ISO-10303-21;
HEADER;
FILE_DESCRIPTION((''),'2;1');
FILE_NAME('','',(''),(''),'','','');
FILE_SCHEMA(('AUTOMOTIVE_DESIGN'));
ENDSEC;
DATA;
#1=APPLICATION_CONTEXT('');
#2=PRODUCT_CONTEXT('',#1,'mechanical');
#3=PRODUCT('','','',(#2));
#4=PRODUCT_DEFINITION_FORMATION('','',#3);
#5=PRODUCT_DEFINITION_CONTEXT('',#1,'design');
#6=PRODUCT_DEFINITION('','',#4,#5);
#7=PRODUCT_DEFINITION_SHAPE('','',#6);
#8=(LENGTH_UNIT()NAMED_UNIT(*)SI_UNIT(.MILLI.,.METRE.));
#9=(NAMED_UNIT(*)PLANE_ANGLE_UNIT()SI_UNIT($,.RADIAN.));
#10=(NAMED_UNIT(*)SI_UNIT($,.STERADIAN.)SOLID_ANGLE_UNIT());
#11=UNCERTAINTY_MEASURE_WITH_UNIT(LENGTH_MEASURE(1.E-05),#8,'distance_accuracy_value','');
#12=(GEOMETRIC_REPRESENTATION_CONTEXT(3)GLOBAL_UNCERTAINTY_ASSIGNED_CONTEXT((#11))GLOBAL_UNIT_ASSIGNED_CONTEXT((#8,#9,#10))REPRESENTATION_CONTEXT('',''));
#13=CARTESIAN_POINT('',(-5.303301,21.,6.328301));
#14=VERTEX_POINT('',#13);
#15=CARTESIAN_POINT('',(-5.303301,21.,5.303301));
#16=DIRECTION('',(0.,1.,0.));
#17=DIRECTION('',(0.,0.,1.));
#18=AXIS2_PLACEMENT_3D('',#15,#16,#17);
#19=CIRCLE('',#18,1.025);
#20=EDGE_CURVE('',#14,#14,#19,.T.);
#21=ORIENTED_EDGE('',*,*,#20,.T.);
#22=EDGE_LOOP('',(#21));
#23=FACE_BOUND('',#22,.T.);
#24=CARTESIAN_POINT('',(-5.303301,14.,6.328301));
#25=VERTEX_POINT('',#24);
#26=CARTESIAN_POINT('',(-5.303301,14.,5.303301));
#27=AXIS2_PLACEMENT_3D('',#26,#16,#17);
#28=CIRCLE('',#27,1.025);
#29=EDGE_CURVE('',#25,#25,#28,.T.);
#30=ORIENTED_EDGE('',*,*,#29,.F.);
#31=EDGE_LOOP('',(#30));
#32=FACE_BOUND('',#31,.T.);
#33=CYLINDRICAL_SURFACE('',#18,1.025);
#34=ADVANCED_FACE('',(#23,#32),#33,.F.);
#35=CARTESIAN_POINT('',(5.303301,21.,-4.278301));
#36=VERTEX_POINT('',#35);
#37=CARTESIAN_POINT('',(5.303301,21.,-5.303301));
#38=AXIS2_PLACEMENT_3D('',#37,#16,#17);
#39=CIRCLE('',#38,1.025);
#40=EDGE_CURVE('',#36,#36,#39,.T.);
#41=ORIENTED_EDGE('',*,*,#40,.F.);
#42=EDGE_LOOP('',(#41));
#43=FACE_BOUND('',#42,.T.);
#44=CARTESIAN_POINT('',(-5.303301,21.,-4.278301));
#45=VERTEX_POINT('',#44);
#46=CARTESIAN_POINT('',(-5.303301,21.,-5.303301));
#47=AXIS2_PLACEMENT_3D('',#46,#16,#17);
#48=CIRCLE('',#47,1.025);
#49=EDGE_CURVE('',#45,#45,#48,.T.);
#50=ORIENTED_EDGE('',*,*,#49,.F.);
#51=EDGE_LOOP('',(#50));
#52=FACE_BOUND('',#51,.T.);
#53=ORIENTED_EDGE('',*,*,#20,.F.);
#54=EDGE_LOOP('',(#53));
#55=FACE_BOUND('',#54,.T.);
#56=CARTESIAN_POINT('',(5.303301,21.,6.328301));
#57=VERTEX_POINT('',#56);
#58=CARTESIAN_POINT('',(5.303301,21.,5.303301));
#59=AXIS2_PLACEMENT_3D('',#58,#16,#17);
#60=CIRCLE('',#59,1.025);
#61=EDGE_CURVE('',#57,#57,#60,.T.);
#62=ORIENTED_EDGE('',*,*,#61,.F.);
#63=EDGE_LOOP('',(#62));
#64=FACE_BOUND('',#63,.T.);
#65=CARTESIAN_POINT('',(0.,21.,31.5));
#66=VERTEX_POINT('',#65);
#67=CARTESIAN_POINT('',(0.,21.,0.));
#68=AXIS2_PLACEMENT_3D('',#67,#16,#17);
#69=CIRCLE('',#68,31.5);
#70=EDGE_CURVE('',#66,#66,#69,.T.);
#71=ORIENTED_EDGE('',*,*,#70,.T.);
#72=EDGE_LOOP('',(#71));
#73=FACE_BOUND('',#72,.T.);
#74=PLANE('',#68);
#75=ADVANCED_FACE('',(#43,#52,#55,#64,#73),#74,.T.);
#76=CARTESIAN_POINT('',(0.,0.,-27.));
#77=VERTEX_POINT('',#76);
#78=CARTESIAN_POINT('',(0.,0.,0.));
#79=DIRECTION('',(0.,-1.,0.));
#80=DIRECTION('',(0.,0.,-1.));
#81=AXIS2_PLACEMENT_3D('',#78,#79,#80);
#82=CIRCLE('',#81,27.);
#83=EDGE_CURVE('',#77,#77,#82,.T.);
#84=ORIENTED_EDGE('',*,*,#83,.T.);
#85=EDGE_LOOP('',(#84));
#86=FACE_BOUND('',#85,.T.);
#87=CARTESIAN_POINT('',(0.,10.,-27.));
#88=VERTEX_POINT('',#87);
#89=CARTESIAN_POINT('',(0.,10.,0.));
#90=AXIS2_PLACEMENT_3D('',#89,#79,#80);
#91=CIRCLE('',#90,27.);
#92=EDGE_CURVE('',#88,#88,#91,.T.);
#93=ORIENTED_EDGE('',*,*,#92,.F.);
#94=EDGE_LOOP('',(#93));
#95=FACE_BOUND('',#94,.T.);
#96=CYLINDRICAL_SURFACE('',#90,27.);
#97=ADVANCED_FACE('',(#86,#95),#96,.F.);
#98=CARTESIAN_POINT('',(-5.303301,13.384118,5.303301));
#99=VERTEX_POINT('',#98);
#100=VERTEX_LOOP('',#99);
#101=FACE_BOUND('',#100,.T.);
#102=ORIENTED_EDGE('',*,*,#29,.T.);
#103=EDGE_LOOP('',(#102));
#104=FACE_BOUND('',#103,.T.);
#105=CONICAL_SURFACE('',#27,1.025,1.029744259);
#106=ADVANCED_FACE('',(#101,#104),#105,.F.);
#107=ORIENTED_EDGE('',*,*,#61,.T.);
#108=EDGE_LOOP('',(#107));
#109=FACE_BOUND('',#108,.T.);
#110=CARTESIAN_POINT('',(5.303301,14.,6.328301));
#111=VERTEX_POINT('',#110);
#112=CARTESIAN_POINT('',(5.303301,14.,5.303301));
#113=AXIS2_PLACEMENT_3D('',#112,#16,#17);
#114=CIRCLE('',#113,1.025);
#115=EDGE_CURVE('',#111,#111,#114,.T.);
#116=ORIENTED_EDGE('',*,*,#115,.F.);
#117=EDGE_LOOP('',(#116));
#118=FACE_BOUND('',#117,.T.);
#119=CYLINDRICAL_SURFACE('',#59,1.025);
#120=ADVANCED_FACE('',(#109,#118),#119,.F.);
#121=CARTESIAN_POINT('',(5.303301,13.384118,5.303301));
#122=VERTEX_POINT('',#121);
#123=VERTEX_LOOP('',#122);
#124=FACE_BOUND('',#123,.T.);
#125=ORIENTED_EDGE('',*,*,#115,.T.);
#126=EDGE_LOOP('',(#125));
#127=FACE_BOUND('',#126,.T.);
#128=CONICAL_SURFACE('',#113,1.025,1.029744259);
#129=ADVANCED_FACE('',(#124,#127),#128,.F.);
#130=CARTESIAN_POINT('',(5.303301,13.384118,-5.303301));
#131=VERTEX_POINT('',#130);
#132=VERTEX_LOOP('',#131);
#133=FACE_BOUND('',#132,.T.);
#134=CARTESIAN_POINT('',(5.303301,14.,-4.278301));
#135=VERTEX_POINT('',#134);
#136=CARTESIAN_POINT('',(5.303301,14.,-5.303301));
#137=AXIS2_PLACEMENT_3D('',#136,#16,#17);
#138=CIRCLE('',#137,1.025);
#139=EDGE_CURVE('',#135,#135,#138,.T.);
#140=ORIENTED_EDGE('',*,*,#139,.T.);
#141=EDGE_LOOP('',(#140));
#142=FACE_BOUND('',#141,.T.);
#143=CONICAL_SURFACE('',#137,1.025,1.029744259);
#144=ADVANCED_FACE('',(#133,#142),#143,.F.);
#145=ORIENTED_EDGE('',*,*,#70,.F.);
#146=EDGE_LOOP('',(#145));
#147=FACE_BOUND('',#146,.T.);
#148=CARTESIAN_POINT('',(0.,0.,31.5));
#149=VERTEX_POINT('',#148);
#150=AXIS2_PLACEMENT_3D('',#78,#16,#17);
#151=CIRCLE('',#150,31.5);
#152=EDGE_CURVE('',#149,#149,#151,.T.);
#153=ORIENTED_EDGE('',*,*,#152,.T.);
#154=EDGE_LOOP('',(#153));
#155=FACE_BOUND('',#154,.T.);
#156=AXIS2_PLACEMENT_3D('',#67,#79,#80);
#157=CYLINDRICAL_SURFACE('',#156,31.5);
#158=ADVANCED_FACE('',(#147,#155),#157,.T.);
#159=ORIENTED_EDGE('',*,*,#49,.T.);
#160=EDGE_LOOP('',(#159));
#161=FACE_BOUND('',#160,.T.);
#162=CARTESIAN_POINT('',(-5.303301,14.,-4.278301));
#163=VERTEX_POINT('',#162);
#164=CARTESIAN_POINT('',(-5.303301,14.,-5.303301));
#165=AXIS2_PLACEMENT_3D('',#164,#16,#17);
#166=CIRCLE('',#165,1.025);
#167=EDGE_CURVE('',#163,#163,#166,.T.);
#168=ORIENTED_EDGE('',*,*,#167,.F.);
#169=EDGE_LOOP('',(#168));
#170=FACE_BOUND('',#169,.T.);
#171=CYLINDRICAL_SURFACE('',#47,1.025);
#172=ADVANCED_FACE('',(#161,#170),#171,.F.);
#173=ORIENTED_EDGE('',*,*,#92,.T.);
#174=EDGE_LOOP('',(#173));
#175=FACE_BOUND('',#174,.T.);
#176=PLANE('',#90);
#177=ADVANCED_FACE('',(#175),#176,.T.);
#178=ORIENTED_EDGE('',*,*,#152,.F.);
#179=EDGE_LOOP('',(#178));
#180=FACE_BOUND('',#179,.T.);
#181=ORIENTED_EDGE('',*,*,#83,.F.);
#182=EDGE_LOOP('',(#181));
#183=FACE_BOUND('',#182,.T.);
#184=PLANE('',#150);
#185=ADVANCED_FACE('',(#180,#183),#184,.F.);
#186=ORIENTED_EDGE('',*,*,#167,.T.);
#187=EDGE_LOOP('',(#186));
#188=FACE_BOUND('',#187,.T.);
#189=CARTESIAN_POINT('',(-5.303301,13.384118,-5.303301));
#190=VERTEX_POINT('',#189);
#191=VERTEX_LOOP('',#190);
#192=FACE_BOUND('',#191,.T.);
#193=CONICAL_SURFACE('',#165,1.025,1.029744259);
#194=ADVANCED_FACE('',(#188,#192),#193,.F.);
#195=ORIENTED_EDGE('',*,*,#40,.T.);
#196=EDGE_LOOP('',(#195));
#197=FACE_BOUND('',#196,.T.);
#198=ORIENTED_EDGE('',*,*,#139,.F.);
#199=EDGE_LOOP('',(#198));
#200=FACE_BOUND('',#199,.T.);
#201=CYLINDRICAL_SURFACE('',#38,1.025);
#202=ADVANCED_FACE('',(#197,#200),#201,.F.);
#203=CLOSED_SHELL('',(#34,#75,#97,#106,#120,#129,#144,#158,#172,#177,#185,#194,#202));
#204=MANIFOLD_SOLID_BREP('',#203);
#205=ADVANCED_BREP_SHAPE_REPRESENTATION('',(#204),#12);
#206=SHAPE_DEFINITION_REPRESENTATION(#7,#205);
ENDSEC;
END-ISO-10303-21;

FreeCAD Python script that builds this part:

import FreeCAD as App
import Part
import Sketcher

doc = App.newDocument("Part")
body = doc.addObject("PartDesign::Body", "Body")

sketch1 = body.newObject("Sketcher::SketchObject", "Sketch")
sketch1.AttachmentSupport = (doc.getObject("XZ_Plane"), [""])
sketch1.MapMode = "FlatFace"
sketch1.addGeometry(Part.Circle(App.Vector(0, 0, 0), App.Vector(0, 0, 1), 32), False)
sketch1.addConstraint([
    Sketcher.Constraint("Coincident", 0, 3, -1, 1),
    Sketcher.Constraint("Diameter", 0, 63.0),
])
pad1 = body.newObject("PartDesign::Pad", "Pad")
pad1.Profile = sketch1
pad1.Length = 21
pad1.Reversed = True

sketch2 = body.newObject("Sketcher::SketchObject", "Sketch001")
sketch2.AttachmentSupport = (doc.getObject("XZ_Plane"), [""])
sketch2.MapMode = "FlatFace"
sketch2.AttachmentOffset = App.Placement(App.Vector(0, 0, -21), App.Rotation())
sketch2.addGeometry([
    Part.Circle(App.Vector(-5.3, -5.3, 0), App.Vector(0, 0, 1), 1),
    Part.Circle(App.Vector(5.3, -5.3, 0), App.Vector(0, 0, 1), 1),
    Part.Circle(App.Vector(5.3, 5.3, 0), App.Vector(0, 0, 1), 1),
    Part.Circle(App.Vector(-5.3, 5.3, 0), App.Vector(0, 0, 1), 1),
], False)
sketch2.addConstraint([
    Sketcher.Constraint("Equal", 0, 1),
    Sketcher.Constraint("Equal", 1, 2),
    Sketcher.Constraint("Equal", 2, 3),
    Sketcher.Constraint("Symmetric", 0, 3, 2, 3, -1, 1),
    Sketcher.Constraint("Symmetric", 1, 3, 3, 3, -1, 1),
    Sketcher.Constraint("Symmetric", 0, 3, 1, 3, -2),
    Sketcher.Constraint("Diameter", 0, 2.05),
    Sketcher.Constraint("DistanceX", 0, 3, -1, 1, 5.303301),
    Sketcher.Constraint("DistanceY", 0, 3, -1, 1, 5.303301),
])
doc.recompute()
hole = body.newObject("PartDesign::Hole", "Hole")
hole.Profile = sketch2
hole.ThreadType = "None"
hole.Diameter = 2.05
hole.DepthType = "Dimension"
hole.Depth = 7
hole.DrillPoint = "Angled"
hole.DrillPointAngle = 118
hole.Reversed = True

sketch3 = body.newObject("Sketcher::SketchObject", "Sketch002")
sketch3.AttachmentSupport = (doc.getObject("XZ_Plane"), [""])
sketch3.MapMode = "FlatFace"
sketch3.addGeometry(Part.Circle(App.Vector(0, 0, 0), App.Vector(0, 0, 1), 27), False)
sketch3.addConstraint([
    Sketcher.Constraint("Coincident", 0, 3, -1, 1),
    Sketcher.Constraint("Diameter", 0, 54.0),
])
pocket1 = body.newObject("PartDesign::Pocket", "Pocket")
pocket1.Profile = sketch3
pocket1.Length = 10

doc.recompute()
